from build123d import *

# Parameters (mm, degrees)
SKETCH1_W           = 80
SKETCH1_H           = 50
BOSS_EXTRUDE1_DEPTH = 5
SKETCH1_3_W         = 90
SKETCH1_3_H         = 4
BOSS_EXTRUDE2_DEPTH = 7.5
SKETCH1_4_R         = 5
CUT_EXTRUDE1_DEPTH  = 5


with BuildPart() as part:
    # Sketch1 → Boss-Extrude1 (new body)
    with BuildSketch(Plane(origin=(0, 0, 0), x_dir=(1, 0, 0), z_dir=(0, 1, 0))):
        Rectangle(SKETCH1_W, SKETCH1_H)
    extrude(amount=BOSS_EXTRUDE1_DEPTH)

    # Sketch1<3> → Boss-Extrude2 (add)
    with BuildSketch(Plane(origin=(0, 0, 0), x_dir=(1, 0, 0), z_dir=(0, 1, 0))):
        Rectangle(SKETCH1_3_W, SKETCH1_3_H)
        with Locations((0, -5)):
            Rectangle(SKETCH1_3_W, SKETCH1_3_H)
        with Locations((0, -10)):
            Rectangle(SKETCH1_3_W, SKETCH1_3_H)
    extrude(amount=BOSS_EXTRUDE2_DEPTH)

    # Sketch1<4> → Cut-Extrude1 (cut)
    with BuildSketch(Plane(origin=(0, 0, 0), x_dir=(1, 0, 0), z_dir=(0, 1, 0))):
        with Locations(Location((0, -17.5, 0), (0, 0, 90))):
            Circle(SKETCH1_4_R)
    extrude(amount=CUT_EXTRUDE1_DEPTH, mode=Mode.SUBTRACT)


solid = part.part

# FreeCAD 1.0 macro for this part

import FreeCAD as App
import Part
import Sketcher


def add_polygon(sketch, points):
    """Adds a closed chain of lines whose ends are joined by coincident constraints."""
    first, n = sketch.GeometryCount, len(points)
    for a, b in zip(points, points[1:] + points[:1]):
        sketch.addGeometry(Part.LineSegment(App.Vector(*a, 0), App.Vector(*b, 0)), False)
    for i in range(n):
        sketch.addConstraint(Sketcher.Constraint("Coincident", first + i, 2, first + (i + 1) % n, 1))

doc = App.newDocument("Part")
body = doc.addObject("PartDesign::Body", "Body")

# Sketch on XZ plane
sketch1 = body.newObject("Sketcher::SketchObject", "Sketch")
sketch1.AttachmentSupport = (doc.getObject("XZ_Plane"), [""])
sketch1.MapMode = "FlatFace"
add_polygon(sketch1, [(-40, -25), (-40, 25), (40, 25), (40, -25)])  # lines 0-3
sketch1.addConstraint([
    Sketcher.Constraint("Vertical", 0),
    Sketcher.Constraint("Horizontal", 1),
    Sketcher.Constraint("Vertical", 2),
    Sketcher.Constraint("Horizontal", 3),
    Sketcher.Constraint("Symmetric", 0, 2, 2, 2, -1, 1),
    Sketcher.Constraint("DistanceX", 1, 1, 1, 2, 80.0),
    Sketcher.Constraint("DistanceY", 0, 1, 0, 2, 50.0),
])
pad1 = body.newObject("PartDesign::Pad", "Pad")
pad1.Profile = sketch1
pad1.Length = 5
pad1.Reversed = True

# Sketch on XZ plane
sketch2 = body.newObject("Sketcher::SketchObject", "Sketch001")
sketch2.AttachmentSupport = (doc.getObject("XZ_Plane"), [""])
sketch2.MapMode = "FlatFace"
add_polygon(sketch2, [(-45, -2), (-45, 2), (45, 2), (45, -2)])  # lines 0-3
add_polygon(sketch2, [(-45, 3), (-45, 7), (45, 7), (45, 3)])  # lines 4-7
add_polygon(sketch2, [(-45, 8), (-45, 12), (45, 12), (45, 8)])  # lines 8-11
sketch2.addConstraint([
    Sketcher.Constraint("Vertical", 0),
    Sketcher.Constraint("Horizontal", 1),
    Sketcher.Constraint("Vertical", 2),
    Sketcher.Constraint("Horizontal", 3),
    Sketcher.Constraint("Vertical", 4),
    Sketcher.Constraint("Horizontal", 5),
    Sketcher.Constraint("Vertical", 6),
    Sketcher.Constraint("Horizontal", 7),
    Sketcher.Constraint("Vertical", 8),
    Sketcher.Constraint("Horizontal", 9),
    Sketcher.Constraint("Vertical", 10),
    Sketcher.Constraint("Horizontal", 11),
    Sketcher.Constraint("Symmetric", 0, 2, 2, 2, -1, 1),
    Sketcher.Constraint("Vertical", 3, 2, 4, 2),
    Sketcher.Constraint("Vertical", 2, 2, 5, 2),
    Sketcher.Constraint("Vertical", 7, 2, 8, 2),
    Sketcher.Constraint("Vertical", 6, 2, 9, 2),
    Sketcher.Constraint("Equal", 2, 4),
    Sketcher.Constraint("Equal", 6, 8),
    Sketcher.Constraint("DistanceX", 1, 1, 1, 2, 90.0),
    Sketcher.Constraint("DistanceY", 0, 1, 0, 2, 4.0),
    Sketcher.Constraint("DistanceY", -1, 1, 4, 2, 7.0),
    Sketcher.Constraint("DistanceY", -1, 1, 8, 2, 12.0),
])
pad2 = body.newObject("PartDesign::Pad", "Pad001")
pad2.Profile = sketch2
pad2.Length = 7.5
pad2.Reversed = True

# Sketch on XZ plane
sketch3 = body.newObject("Sketcher::SketchObject", "Sketch002")
sketch3.AttachmentSupport = (doc.getObject("XZ_Plane"), [""])
sketch3.MapMode = "FlatFace"
sketch3.addGeometry(Part.Circle(App.Vector(0, 18, 0), App.Vector(0, 0, 1), 5), False)
sketch3.addConstraint([
    Sketcher.Constraint("PointOnObject", 0, 3, -2),
    Sketcher.Constraint("Diameter", 0, 10.0),
    Sketcher.Constraint("DistanceY", -1, 1, 0, 3, 17.5),
])
pocket1 = body.newObject("PartDesign::Pocket", "Pocket")
pocket1.Profile = sketch3
pocket1.Length = 5

doc.recompute()
